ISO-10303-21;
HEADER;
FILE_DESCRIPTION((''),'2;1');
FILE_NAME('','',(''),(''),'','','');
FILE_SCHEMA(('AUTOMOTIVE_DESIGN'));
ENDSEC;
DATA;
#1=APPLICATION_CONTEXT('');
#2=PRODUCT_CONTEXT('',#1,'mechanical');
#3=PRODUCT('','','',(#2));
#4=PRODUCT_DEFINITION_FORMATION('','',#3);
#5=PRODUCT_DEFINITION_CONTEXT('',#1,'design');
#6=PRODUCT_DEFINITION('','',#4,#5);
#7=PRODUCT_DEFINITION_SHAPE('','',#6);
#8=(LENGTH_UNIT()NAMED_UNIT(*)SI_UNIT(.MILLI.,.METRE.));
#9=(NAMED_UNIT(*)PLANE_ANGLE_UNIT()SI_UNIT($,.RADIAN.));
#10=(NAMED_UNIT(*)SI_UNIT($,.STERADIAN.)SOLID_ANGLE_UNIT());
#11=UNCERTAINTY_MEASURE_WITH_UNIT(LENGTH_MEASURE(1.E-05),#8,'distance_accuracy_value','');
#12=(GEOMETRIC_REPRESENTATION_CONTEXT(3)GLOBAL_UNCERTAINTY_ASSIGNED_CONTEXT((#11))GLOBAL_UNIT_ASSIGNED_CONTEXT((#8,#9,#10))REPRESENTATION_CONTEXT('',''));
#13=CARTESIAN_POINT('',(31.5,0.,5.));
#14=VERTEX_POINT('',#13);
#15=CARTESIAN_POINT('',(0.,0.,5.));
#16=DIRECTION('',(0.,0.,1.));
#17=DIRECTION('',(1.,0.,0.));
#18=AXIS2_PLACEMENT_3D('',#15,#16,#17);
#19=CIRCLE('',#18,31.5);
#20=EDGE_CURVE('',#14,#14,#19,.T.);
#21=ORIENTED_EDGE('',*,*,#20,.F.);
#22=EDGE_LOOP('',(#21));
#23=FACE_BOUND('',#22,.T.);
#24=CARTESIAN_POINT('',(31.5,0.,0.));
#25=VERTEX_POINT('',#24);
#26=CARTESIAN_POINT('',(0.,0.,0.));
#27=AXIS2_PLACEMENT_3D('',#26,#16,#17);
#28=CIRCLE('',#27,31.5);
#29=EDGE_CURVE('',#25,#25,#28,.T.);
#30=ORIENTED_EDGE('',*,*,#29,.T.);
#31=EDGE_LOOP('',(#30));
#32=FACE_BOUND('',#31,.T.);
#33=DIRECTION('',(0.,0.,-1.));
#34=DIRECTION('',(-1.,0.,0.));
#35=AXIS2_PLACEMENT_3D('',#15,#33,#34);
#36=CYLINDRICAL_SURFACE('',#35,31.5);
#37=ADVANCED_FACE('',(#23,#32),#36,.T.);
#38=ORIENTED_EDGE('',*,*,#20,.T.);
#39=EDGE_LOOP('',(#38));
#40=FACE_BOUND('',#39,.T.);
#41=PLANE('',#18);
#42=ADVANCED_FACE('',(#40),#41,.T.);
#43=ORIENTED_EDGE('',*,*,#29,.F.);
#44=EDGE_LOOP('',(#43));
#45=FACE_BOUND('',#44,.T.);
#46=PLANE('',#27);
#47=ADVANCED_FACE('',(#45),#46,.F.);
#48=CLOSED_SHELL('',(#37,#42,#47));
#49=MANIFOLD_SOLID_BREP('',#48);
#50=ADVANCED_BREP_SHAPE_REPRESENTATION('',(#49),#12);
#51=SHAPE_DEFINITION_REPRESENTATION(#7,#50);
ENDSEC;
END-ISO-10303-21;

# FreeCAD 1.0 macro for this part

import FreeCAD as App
import Part
import Sketcher
from FreeCAD import Vector

doc = App.newDocument("Part")
body = doc.addObject("PartDesign::Body", "Body")

sketch1 = doc.addObject("Sketcher::SketchObject", "Sketch")
body.addObject(sketch1)
sketch1.AttachmentSupport = (doc.XY_Plane, [""])
sketch1.MapMode = "FlatFace"
sketch1.addGeometry(Part.Circle(Vector(0, 0, 0), Vector(0, 0, 1), 32), False)
sketch1.addConstraint([
    Sketcher.Constraint("Coincident", 0, 3, -1, 1),
    Sketcher.Constraint("Diameter", 0, 63.0),
])
pad1 = doc.addObject("PartDesign::Pad", "Pad")
body.addObject(pad1)
pad1.Profile = sketch1
pad1.Length = 5

doc.recompute()
